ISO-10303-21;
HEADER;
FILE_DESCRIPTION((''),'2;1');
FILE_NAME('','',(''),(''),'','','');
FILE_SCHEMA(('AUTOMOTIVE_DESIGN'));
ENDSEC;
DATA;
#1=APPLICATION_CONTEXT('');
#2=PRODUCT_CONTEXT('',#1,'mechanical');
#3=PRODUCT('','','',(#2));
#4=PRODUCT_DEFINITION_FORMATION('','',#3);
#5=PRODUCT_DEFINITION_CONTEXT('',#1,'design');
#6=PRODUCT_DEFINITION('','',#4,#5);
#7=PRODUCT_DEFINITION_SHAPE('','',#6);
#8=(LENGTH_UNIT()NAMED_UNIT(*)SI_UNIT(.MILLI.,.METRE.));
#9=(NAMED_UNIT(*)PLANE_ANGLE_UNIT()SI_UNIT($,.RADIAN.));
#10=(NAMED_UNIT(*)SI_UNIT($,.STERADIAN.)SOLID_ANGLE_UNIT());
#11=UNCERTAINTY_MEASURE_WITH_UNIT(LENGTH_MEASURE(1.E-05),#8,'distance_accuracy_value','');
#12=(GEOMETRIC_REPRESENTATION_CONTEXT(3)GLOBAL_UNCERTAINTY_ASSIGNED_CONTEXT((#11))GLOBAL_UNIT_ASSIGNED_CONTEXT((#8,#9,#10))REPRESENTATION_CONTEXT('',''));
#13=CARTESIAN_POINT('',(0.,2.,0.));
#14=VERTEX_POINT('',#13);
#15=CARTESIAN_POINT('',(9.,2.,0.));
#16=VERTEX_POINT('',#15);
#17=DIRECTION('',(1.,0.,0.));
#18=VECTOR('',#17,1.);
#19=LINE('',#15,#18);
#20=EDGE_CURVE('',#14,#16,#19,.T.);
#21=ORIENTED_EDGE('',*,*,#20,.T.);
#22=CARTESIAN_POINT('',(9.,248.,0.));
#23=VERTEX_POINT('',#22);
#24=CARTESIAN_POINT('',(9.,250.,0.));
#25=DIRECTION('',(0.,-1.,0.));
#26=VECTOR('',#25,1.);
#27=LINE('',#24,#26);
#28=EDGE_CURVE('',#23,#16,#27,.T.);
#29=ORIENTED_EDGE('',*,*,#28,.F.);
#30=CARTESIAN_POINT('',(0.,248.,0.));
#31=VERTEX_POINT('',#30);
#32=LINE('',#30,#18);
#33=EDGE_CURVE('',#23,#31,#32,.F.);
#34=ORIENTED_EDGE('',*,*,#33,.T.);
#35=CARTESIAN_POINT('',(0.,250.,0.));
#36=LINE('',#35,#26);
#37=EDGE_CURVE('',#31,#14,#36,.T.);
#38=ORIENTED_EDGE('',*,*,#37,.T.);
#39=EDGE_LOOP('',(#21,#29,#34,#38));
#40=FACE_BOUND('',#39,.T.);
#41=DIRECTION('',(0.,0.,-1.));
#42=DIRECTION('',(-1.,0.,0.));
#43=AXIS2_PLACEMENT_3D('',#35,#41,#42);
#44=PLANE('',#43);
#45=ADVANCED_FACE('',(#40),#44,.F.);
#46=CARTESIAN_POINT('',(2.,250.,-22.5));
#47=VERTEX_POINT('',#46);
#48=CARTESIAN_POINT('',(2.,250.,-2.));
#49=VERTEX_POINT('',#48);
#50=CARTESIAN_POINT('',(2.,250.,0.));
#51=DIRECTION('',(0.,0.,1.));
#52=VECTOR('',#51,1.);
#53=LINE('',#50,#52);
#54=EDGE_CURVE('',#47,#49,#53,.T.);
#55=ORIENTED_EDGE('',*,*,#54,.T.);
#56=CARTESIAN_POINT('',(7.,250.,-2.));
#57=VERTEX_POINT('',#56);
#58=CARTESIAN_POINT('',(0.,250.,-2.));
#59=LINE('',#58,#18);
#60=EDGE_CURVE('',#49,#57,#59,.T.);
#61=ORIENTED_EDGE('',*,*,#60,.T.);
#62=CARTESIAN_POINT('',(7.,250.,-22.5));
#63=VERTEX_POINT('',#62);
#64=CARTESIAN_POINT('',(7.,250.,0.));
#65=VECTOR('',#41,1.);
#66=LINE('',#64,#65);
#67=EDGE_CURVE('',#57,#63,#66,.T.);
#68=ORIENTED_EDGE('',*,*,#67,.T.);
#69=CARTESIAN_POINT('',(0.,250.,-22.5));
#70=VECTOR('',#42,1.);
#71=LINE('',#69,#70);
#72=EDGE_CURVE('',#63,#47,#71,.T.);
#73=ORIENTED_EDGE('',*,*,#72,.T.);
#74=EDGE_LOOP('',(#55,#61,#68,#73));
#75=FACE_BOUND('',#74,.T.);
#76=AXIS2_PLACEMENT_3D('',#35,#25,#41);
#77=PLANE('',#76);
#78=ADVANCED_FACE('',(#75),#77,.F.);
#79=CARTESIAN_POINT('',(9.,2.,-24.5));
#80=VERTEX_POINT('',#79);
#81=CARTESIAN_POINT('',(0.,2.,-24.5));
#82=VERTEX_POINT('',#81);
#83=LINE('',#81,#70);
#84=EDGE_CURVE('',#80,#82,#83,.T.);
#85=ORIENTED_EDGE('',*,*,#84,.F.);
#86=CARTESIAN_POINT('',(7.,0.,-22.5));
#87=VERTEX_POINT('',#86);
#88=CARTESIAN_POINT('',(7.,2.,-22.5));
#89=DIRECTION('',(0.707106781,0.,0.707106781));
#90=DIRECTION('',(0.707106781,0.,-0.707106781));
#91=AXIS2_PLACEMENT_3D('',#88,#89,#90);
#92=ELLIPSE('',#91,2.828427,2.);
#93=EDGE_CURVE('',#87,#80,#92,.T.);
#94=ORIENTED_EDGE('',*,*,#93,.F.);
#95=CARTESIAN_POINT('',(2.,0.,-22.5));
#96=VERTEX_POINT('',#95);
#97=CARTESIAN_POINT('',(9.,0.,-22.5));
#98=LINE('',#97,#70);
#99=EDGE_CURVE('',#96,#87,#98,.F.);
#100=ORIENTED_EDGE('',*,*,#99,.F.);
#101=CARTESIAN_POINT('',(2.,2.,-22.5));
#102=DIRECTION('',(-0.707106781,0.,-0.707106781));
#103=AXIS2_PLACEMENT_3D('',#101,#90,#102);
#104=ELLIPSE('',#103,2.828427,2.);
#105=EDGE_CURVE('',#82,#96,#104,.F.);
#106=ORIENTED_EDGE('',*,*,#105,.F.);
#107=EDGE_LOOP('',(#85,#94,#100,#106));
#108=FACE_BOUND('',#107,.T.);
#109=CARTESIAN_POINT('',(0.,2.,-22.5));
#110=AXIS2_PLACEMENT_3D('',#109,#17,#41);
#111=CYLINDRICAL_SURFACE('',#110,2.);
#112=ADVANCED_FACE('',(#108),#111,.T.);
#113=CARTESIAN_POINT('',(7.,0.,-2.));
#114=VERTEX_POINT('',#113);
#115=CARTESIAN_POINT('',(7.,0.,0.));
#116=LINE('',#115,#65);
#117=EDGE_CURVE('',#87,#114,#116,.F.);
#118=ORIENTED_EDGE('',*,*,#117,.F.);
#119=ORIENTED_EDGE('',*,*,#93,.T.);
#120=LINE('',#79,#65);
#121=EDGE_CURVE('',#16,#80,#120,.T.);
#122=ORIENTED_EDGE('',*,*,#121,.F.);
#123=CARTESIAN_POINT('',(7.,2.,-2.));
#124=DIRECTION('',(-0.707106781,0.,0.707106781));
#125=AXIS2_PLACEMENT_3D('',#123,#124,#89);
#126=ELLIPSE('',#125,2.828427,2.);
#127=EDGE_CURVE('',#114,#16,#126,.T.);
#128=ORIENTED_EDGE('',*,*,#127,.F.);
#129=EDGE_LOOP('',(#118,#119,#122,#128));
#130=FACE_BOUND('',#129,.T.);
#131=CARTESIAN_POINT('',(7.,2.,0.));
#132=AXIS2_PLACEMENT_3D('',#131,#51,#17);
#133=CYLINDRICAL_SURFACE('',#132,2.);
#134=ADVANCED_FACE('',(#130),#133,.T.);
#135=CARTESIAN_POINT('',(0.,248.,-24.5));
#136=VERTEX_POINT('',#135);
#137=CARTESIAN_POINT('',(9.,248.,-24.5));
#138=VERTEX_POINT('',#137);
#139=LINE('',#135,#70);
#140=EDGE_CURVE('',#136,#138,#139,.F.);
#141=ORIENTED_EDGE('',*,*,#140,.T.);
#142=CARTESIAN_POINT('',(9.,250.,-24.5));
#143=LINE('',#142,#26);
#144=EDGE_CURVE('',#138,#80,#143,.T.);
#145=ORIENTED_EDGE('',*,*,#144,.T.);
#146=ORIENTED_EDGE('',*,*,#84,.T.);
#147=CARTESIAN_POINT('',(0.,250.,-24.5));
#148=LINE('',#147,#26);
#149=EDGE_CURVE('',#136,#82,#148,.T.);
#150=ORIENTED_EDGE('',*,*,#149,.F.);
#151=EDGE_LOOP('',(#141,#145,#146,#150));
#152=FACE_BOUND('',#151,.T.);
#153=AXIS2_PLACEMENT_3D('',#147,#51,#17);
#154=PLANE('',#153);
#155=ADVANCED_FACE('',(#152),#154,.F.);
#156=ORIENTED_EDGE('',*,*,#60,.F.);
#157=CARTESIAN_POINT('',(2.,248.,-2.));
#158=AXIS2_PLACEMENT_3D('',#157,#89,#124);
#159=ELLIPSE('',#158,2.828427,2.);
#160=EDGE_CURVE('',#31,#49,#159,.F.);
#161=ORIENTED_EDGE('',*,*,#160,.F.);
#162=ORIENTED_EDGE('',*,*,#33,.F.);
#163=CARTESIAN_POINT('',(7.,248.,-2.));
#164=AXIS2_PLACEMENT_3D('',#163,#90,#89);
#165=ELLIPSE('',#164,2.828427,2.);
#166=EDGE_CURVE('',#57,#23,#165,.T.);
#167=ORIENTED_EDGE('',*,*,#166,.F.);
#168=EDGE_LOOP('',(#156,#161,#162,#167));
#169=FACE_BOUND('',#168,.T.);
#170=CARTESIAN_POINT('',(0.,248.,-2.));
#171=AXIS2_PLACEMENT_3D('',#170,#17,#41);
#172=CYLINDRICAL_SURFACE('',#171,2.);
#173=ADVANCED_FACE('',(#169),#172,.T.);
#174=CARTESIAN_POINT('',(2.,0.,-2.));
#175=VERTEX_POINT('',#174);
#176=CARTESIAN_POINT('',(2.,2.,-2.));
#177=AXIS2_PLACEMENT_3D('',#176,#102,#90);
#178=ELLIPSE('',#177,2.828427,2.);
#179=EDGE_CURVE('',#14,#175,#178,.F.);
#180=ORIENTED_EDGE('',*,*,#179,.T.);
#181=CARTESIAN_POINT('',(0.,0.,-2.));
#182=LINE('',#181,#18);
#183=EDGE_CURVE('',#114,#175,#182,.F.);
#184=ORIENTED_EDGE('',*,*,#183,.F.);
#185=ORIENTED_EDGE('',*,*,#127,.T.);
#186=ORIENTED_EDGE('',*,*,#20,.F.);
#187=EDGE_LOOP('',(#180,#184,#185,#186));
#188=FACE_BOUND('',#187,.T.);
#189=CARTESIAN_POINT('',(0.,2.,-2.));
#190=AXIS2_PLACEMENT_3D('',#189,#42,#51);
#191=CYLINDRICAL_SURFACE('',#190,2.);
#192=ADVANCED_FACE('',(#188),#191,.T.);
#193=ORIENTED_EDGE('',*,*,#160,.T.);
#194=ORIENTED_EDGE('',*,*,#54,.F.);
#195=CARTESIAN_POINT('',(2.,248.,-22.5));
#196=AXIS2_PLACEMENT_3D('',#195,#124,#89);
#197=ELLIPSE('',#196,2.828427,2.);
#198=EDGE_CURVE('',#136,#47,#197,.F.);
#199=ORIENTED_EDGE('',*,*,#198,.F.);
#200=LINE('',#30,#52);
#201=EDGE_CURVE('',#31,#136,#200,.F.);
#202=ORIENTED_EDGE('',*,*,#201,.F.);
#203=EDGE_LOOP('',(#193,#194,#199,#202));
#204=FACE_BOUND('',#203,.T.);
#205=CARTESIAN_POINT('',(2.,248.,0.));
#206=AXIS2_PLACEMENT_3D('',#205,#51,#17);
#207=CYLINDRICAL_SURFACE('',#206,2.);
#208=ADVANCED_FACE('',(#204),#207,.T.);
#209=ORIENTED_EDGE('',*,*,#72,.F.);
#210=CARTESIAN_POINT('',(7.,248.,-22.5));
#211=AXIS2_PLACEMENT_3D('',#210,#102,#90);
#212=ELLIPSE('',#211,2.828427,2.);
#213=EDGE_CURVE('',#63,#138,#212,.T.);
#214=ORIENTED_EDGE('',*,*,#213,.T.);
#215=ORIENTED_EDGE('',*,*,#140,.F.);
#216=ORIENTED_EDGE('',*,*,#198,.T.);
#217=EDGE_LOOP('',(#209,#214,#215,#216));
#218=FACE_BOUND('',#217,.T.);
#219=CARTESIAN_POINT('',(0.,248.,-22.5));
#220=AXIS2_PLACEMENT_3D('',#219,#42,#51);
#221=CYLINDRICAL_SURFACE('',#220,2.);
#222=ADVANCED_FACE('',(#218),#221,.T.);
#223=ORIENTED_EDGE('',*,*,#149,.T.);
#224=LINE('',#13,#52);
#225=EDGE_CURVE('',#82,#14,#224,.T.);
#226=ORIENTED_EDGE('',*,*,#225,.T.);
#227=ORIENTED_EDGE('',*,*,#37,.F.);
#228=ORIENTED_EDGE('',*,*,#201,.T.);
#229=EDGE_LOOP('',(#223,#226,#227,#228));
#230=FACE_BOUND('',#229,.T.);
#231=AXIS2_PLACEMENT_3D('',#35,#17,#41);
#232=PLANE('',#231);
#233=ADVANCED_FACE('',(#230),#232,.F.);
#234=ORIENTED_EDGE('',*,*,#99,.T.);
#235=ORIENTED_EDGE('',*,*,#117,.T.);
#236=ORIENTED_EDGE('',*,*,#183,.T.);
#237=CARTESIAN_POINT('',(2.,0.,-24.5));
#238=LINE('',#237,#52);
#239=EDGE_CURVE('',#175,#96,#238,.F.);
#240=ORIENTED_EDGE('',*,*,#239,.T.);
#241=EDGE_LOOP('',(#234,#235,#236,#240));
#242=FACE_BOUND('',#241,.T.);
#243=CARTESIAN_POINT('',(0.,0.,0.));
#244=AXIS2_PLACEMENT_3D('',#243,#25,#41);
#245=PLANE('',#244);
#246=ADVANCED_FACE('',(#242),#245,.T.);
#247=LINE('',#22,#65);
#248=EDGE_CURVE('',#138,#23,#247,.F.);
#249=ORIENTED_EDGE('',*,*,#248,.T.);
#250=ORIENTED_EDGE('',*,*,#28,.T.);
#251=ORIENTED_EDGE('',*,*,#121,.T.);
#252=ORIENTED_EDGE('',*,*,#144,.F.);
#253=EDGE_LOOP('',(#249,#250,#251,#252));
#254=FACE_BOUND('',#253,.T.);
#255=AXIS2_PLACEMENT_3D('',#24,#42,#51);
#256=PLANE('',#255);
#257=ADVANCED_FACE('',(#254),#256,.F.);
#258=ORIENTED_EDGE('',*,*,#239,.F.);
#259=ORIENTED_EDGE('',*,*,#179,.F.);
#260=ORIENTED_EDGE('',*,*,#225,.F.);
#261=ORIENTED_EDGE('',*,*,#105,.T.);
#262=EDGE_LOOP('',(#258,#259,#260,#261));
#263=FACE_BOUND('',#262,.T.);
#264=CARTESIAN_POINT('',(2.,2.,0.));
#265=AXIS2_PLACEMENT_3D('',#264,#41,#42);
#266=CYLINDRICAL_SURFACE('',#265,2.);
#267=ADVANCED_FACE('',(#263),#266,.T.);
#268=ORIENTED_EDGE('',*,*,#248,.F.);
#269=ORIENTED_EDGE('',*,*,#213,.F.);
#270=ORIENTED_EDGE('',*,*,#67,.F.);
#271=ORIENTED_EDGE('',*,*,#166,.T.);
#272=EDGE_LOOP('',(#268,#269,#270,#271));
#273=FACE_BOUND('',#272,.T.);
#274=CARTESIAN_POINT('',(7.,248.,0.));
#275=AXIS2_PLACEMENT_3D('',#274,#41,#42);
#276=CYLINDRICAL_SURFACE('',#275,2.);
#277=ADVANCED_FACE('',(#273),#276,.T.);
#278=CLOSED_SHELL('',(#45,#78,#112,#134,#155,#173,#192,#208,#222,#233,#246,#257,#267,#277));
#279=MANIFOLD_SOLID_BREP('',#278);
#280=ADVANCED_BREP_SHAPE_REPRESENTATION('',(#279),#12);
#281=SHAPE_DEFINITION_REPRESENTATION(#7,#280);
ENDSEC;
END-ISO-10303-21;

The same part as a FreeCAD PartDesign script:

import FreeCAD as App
import Part
import Sketcher
Q = App.Units.Quantity


def edges_at(feature, points):
    """Names of the edges that pass closest to the given points."""
    edges = feature.Shape.Edges
    near = lambda p: min(range(len(edges)), key=lambda i: edges[i].distToShape(Part.Vertex(*p))[0])
    return sorted({f"Edge{near(p) + 1}" for p in points})

doc = App.newDocument("Part")
params = doc.addObject("Spreadsheet::Sheet", "Params")
for row, (alias, value) in enumerate([
    ("sketch1_width", "9 mm"),
    ("sketch1_height", "24.5 mm"),
    ("pad1_length", "250 mm"),
    ("fillet_radius", "2 mm"),
], start=1):
    params.set(f"A{row}", alias)
    params.set(f"B{row}", "=" + value)
    params.setAlias(f"B{row}", alias)

body = doc.addObject("PartDesign::Body", "Body")

# Sketch on XZ plane
sketch1 = doc.addObject("Sketcher::SketchObject", "Sketch")
body.addObject(sketch1)
sketch1.AttachmentSupport = (doc.XZ_Plane, [""])
sketch1.MapMode = "FlatFace"
sketch1.addGeometry([
    Part.LineSegment(App.Vector(0, -24.5, 0), App.Vector(0, 0, 0)),
    Part.LineSegment(App.Vector(0, 0, 0), App.Vector(9, 0, 0)),
    Part.LineSegment(App.Vector(9, 0, 0), App.Vector(9, -24.5, 0)),
    Part.LineSegment(App.Vector(9, -24.5, 0), App.Vector(0, -24.5, 0)),
], False)
sketch1.addConstraint([
    Sketcher.Constraint("Coincident", 0, 2, 1, 1),
    Sketcher.Constraint("Coincident", 1, 2, 2, 1),
    Sketcher.Constraint("Coincident", 2, 2, 3, 1),
    Sketcher.Constraint("Coincident", 3, 2, 0, 1),
    Sketcher.Constraint("Vertical", 0),
    Sketcher.Constraint("Horizontal", 1),
    Sketcher.Constraint("Vertical", 2),
    Sketcher.Constraint("Horizontal", 3),
    Sketcher.Constraint("Coincident", 0, 2, -1, 1),
    Sketcher.Constraint("DistanceX", 1, 1, 1, 2, Q("9 mm")),
    Sketcher.Constraint("DistanceY", 0, 1, 0, 2, Q("24.5 mm")),
])
sketch1.setExpression("Constraints[9]", "Params.sketch1_width")
sketch1.setExpression("Constraints[10]", "Params.sketch1_height")
pad1 = doc.addObject("PartDesign::Pad", "Pad")
body.addObject(pad1)
pad1.Profile = sketch1
pad1.setExpression("Length", "Params.pad1_length")
pad1.Reversed = True
doc.recompute()

fillet = doc.addObject("PartDesign::Fillet", "Fillet")
body.addObject(fillet)
fillet.Base = (pad1, edges_at(pad1, [
    (9, 250, -12.25),
    (4.5, 250, -24.5),
    (0, 250, -12.25),
    (4.5, 0, -24.5),
    (9, 0, -12.25),
    (4.5, 0, 0),
    (0, 0, -12.25),
    (4.5, 250, 0),
]))
fillet.setExpression("Radius", "Params.fillet_radius")

doc.recompute()
